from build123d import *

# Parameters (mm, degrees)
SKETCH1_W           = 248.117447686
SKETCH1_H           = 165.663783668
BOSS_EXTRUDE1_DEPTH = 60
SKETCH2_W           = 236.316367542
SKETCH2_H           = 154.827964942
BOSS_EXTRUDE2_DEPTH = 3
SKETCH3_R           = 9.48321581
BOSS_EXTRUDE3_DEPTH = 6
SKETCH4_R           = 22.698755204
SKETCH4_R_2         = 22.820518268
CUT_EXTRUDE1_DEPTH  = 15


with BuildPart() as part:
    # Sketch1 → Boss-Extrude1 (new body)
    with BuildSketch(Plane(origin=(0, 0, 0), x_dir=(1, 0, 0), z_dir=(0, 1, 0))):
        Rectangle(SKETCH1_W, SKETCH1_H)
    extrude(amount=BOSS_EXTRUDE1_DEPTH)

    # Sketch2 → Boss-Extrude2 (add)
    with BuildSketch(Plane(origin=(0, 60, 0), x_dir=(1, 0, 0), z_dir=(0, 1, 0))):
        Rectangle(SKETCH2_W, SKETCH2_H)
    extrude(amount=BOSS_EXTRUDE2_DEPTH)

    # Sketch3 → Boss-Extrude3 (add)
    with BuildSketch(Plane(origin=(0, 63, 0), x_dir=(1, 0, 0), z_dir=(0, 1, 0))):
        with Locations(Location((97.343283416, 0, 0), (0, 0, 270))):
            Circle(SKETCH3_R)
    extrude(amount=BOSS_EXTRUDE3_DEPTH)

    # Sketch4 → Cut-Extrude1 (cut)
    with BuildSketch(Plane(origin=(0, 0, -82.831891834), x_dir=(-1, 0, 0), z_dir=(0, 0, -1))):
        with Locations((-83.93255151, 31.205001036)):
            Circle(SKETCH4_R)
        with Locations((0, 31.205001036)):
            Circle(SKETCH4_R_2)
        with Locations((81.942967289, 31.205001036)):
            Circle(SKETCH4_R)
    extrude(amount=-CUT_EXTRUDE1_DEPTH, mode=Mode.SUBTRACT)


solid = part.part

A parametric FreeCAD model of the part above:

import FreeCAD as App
import Part
import Sketcher

V = App.Vector

doc = App.newDocument("Part")
body = doc.addObject("PartDesign::Body", "Body")

# Sketch on XZ plane
sketch1 = body.newObject("Sketcher::SketchObject", "Sketch")
sketch1.AttachmentSupport = (doc.getObject("XZ_Plane"), [""])
sketch1.MapMode = "FlatFace"
sketch1.addGeometry([
    Part.LineSegment(V(-124, -83, 0), V(-124, 83, 0)),
    Part.LineSegment(V(-124, 83, 0), V(124, 83, 0)),
    Part.LineSegment(V(124, 83, 0), V(124, -83, 0)),
    Part.LineSegment(V(124, -83, 0), V(-124, -83, 0)),
], False)
sketch1.addConstraint([
    Sketcher.Constraint("Coincident", 0, 2, 1, 1),
    Sketcher.Constraint("Coincident", 1, 2, 2, 1),
    Sketcher.Constraint("Coincident", 2, 2, 3, 1),
    Sketcher.Constraint("Coincident", 3, 2, 0, 1),
    Sketcher.Constraint("Vertical", 0),
    Sketcher.Constraint("Horizontal", 1),
    Sketcher.Constraint("Vertical", 2),
    Sketcher.Constraint("Horizontal", 3),
    Sketcher.Constraint("Symmetric", 0, 2, 2, 2, -1, 1),
    Sketcher.Constraint("DistanceX", 1, 1, 1, 2, 248.117448),
    Sketcher.Constraint("DistanceY", 0, 1, 0, 2, 165.663784),
])
pad1 = body.newObject("PartDesign::Pad", "Pad")
pad1.Profile = sketch1
pad1.Length = 60
pad1.Reversed = True

# Sketch on XZ plane
sketch2 = body.newObject("Sketcher::SketchObject", "Sketch001")
sketch2.AttachmentSupport = (doc.getObject("XZ_Plane"), [""])
sketch2.MapMode = "FlatFace"
sketch2.AttachmentOffset = App.Placement(V(0, 0, -60), App.Rotation())
sketch2.addGeometry([
    Part.LineSegment(V(-118, -77, 0), V(-118, 77, 0)),
    Part.LineSegment(V(-118, 77, 0), V(118, 77, 0)),
    Part.LineSegment(V(118, 77, 0), V(118, -77, 0)),
    Part.LineSegment(V(118, -77, 0), V(-118, -77, 0)),
], False)
sketch2.addConstraint([
    Sketcher.Constraint("Coincident", 0, 2, 1, 1),
    Sketcher.Constraint("Coincident", 1, 2, 2, 1),
    Sketcher.Constraint("Coincident", 2, 2, 3, 1),
    Sketcher.Constraint("Coincident", 3, 2, 0, 1),
    Sketcher.Constraint("Vertical", 0),
    Sketcher.Constraint("Horizontal", 1),
    Sketcher.Constraint("Vertical", 2),
    Sketcher.Constraint("Horizontal", 3),
    Sketcher.Constraint("Symmetric", 0, 2, 2, 2, -1, 1),
    Sketcher.Constraint("DistanceX", 1, 1, 1, 2, 236.316368),
    Sketcher.Constraint("DistanceY", 0, 1, 0, 2, 154.827965),
])
pad2 = body.newObject("PartDesign::Pad", "Pad001")
pad2.Profile = sketch2
pad2.Length = 3
pad2.Reversed = True

# Sketch on XZ plane
sketch3 = body.newObject("Sketcher::SketchObject", "Sketch002")
sketch3.AttachmentSupport = (doc.getObject("XZ_Plane"), [""])
sketch3.MapMode = "FlatFace"
sketch3.AttachmentOffset = App.Placement(V(0, 0, -63), App.Rotation())
sketch3.addGeometry(Part.Circle(V(97, 0, 0), V(0, 0, 1), 9), False)
sketch3.addConstraint([
    Sketcher.Constraint("PointOnObject", 0, 3, -1),
    Sketcher.Constraint("Diameter", 0, 18.966432),
    Sketcher.Constraint("DistanceX", -1, 1, 0, 3, 97.343283),
])
pad3 = body.newObject("PartDesign::Pad", "Pad002")
pad3.Profile = sketch3
pad3.Length = 6
pad3.Reversed = True

# Sketch on XY plane
sketch4 = body.newObject("Sketcher::SketchObject", "Sketch003")
sketch4.AttachmentSupport = (doc.getObject("XY_Plane"), [""])
sketch4.MapMode = "FlatFace"
sketch4.AttachmentOffset = App.Placement(V(0, 0, -82.831892), App.Rotation())
sketch4.addGeometry([
    Part.Circle(V(84, 31, 0), V(0, 0, 1), 23),
    Part.Circle(V(0, 31, 0), V(0, 0, 1), 23),
    Part.Circle(V(-82, 31, 0), V(0, 0, 1), 23),
], False)
sketch4.addConstraint([
    Sketcher.Constraint("Equal", 0, 2),
    Sketcher.Constraint("PointOnObject", 1, 3, -2),
    Sketcher.Constraint("Horizontal", 0, 3, 1, 3),
    Sketcher.Constraint("Horizontal", 1, 3, 2, 3),
    Sketcher.Constraint("Diameter", 0, 45.39751),
    Sketcher.Constraint("Diameter", 1, 45.641037),
    Sketcher.Constraint("DistanceY", -1, 1, 0, 3, 31.205001),
    Sketcher.Constraint("DistanceX", -1, 1, 0, 3, 83.932552),
    Sketcher.Constraint("DistanceX", 2, 3, 0, 3, 165.875519),
])
pocket1 = body.newObject("PartDesign::Pocket", "Pocket")
pocket1.Profile = sketch4
pocket1.Length = 15
pocket1.Reversed = True

doc.recompute()
